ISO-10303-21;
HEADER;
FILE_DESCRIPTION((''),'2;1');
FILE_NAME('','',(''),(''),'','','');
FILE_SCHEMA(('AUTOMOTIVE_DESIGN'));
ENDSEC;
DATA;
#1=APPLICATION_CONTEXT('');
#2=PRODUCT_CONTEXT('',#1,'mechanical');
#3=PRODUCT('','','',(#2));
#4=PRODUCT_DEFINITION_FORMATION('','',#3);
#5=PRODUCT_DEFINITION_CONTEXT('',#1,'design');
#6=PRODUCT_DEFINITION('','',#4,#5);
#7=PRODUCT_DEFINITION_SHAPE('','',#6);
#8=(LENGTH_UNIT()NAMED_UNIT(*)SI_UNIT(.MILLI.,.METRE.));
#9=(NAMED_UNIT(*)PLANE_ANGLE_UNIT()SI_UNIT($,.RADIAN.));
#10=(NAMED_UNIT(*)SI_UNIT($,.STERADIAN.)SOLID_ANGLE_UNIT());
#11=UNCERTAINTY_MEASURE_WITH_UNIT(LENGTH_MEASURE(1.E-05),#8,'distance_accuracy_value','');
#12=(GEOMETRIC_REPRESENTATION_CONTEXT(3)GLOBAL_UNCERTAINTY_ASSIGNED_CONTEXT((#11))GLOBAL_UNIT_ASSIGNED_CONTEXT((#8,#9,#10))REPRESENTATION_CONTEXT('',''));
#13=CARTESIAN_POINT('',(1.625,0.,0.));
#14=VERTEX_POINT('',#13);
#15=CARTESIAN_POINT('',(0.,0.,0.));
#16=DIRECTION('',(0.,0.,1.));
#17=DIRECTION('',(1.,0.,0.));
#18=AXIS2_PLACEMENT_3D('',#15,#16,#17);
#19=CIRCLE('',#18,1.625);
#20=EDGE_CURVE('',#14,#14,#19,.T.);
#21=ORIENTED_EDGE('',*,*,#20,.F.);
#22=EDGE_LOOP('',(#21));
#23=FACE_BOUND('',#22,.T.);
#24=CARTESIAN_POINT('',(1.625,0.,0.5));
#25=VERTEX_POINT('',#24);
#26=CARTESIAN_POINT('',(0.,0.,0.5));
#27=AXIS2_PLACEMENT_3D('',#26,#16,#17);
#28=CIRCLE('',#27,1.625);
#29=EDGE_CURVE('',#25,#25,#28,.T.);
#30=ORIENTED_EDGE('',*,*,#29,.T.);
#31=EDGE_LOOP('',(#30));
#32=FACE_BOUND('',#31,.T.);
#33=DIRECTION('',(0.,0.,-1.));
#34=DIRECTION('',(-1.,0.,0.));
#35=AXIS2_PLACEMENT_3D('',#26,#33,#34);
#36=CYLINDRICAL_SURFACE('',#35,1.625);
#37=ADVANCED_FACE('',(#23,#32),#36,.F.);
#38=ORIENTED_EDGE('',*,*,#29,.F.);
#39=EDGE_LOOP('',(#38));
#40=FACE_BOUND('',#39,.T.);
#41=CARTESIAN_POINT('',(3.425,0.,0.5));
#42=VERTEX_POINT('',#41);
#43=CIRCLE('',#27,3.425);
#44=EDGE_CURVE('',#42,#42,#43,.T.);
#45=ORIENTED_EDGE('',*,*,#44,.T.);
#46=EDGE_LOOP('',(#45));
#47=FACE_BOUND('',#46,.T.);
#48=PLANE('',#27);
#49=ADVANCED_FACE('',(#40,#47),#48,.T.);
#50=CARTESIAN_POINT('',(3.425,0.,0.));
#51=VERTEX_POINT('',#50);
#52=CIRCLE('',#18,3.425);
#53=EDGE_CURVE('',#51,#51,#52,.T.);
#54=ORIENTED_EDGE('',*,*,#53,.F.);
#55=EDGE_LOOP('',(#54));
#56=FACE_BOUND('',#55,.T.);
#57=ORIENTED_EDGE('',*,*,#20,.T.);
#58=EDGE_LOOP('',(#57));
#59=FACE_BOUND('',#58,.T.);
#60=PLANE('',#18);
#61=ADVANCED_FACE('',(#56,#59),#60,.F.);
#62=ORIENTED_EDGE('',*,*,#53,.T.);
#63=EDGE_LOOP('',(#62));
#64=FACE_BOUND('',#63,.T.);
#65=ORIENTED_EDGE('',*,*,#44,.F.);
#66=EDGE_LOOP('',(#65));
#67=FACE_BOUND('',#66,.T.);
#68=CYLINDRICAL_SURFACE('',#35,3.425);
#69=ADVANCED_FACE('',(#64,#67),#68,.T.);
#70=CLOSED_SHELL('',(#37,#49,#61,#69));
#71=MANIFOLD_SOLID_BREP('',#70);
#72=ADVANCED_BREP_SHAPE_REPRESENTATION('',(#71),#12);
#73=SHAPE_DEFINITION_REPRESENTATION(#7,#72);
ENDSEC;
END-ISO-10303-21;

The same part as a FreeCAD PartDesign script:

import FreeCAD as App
import Part
import Sketcher
from FreeCAD import Vector
Q = App.Units.Quantity

doc = App.newDocument("Part")
body = doc.addObject("PartDesign::Body", "Body")

# Sketch on XY plane
sketch1 = body.newObject("Sketcher::SketchObject", "Sketch")
sketch1.AttachmentSupport = (doc.getObject("XY_Plane"), [""])
sketch1.MapMode = "FlatFace"
sketch1.addGeometry([
    Part.Circle(Vector(0, 0, 0), Vector(0, 0, 1), 3.425),
    Part.Circle(Vector(0, 0, 0), Vector(0, 0, 1), 1.625),
], False)
sketch1.addConstraint([
    Sketcher.Constraint("Coincident", 0, 3, -1, 1),
    Sketcher.Constraint("Coincident", 1, 3, -1, 1),
    Sketcher.Constraint("Diameter", 0, Q("6.85 mm")),
    Sketcher.Constraint("Diameter", 1, Q("3.25 mm")),
])
pad1 = body.newObject("PartDesign::Pad", "Pad")
pad1.Profile = sketch1
pad1.Length = 0.5

doc.recompute()
